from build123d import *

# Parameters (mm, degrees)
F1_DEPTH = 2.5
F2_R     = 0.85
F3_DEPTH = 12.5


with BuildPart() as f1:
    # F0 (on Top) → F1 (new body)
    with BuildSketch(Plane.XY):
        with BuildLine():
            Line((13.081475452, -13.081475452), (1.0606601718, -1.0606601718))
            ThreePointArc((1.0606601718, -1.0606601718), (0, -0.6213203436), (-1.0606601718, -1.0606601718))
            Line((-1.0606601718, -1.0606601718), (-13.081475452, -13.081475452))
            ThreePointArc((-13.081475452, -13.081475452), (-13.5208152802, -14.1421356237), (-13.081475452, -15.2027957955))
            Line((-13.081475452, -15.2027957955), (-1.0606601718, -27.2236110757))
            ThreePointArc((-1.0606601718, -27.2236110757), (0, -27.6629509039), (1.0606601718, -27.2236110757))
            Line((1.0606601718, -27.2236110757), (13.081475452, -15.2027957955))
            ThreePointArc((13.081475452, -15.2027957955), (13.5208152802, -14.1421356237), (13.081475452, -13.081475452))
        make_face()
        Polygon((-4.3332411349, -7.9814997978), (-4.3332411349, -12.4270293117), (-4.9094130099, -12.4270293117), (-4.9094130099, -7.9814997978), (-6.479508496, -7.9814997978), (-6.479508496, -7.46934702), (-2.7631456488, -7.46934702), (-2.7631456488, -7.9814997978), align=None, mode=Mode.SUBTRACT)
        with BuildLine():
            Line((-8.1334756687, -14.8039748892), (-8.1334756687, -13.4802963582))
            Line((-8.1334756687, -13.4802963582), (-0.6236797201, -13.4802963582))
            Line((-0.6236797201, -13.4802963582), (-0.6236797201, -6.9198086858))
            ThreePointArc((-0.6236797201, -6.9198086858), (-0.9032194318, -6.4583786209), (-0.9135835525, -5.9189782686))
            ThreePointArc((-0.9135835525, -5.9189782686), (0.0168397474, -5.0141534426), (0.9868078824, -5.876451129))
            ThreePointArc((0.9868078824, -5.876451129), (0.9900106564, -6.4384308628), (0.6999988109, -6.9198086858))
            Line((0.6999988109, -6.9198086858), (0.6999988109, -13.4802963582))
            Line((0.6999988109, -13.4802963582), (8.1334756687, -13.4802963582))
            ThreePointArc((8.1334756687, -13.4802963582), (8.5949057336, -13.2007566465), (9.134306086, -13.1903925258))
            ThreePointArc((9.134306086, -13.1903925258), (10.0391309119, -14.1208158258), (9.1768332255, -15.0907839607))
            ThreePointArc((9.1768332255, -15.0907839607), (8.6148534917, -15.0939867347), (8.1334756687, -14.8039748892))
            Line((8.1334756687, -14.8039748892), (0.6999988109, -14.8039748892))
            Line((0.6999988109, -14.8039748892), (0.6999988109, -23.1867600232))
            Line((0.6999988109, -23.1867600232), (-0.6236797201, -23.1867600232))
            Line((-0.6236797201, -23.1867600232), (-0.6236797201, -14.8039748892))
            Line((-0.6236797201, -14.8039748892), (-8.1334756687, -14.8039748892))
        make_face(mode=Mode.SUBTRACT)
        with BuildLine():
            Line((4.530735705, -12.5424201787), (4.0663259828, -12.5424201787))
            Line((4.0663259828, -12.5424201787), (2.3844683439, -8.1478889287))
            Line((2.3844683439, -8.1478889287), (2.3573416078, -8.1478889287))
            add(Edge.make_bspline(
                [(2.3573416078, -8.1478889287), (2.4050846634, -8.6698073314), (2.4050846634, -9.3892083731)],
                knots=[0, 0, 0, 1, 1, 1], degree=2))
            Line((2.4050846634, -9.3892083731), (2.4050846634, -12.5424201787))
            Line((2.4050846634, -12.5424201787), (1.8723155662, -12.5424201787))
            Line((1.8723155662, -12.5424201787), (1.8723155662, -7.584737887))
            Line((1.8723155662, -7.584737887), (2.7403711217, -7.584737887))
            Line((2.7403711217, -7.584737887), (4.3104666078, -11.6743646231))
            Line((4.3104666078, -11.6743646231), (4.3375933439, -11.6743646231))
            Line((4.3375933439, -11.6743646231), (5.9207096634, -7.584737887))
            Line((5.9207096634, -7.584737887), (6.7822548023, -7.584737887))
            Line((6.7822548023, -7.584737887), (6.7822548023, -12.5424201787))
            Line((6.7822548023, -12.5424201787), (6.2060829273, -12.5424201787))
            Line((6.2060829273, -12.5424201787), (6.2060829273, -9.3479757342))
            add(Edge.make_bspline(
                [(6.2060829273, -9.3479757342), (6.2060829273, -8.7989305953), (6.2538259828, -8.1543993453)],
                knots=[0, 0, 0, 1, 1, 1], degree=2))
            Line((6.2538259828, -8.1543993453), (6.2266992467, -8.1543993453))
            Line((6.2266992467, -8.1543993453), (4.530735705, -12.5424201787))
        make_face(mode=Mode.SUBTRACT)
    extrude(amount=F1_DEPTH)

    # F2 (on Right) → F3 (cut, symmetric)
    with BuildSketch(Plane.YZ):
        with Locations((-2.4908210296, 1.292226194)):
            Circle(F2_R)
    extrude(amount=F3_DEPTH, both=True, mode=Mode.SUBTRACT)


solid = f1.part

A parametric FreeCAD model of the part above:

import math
import FreeCAD as App
import Part
import Sketcher

V = App.Vector
Q = App.Units.Quantity


def add_polygon(sketch, points):
    """Adds a closed chain of lines whose ends are joined by coincident constraints."""
    first, n = sketch.GeometryCount, len(points)
    for a, b in zip(points, points[1:] + points[:1]):
        sketch.addGeometry(Part.LineSegment(App.Vector(*a, 0), App.Vector(*b, 0)), False)
    for i in range(n):
        sketch.addConstraint(Sketcher.Constraint("Coincident", first + i, 2, first + (i + 1) % n, 1))

doc = App.newDocument("Part")
body = doc.addObject("PartDesign::Body", "Body")

sketch1 = body.newObject("Sketcher::SketchObject", "Sketch")
sketch1.AttachmentSupport = (doc.getObject("XY_Plane"), [""])
sketch1.MapMode = "FlatFace"
sketch1.addGeometry(Part.LineSegment(V(13.081475, -13.081475, 0), V(1.06066, -1.06066, 0)), False)
sketch1.addGeometry(Part.ArcOfCircle(Part.Circle(V(0, -2.12132, 0), V(0, 0, 1), 1.5), math.radians(45), math.radians(135)), False)
sketch1.addGeometry(Part.LineSegment(V(-1.06066, -1.06066, 0), V(-13.081475, -13.081475, 0)), False)
sketch1.addGeometry(Part.ArcOfCircle(Part.Circle(V(-12.020815, -14.142136, 0), V(0, 0, 1), 1.5), math.radians(135), math.radians(225)), False)
sketch1.addGeometry(Part.LineSegment(V(-13.081475, -15.202796, 0), V(-1.06066, -27.223611, 0)), False)
sketch1.addGeometry(Part.ArcOfCircle(Part.Circle(V(0, -26.162951, 0), V(0, 0, 1), 1.5), math.radians(-135), math.radians(-45)), False)
sketch1.addGeometry(Part.LineSegment(V(1.06066, -27.223611, 0), V(13.081475, -15.202796, 0)), False)
sketch1.addGeometry(Part.ArcOfCircle(Part.Circle(V(12.020815, -14.142136, 0), V(0, 0, 1), 1.5), math.radians(-45), math.radians(45)), False)
add_polygon(sketch1, [(-2.763146, -7.9815), (-4.333241, -7.9815), (-4.333241, -12.427029), (-4.909413, -12.427029), (-4.909413, -7.9815), (-6.479508, -7.9815), (-6.479508, -7.469347), (-2.763146, -7.469347)])
sketch1.addGeometry(Part.LineSegment(V(-0.62368, -14.803975, 0), V(-8.133476, -14.803975, 0)), False)
sketch1.addGeometry(Part.LineSegment(V(-8.133476, -14.803975, 0), V(-8.133476, -13.480296, 0)), False)
sketch1.addGeometry(Part.LineSegment(V(-8.133476, -13.480296, 0), V(-0.62368, -13.480296, 0)), False)
sketch1.addGeometry(Part.LineSegment(V(-0.62368, -13.480296, 0), V(-0.62368, -6.919809, 0)), False)
sketch1.addGeometry(Part.ArcOfCircle(Part.Circle(V(0.094379, -6.169411, 0), V(0, 0, 1), 1.038608), math.radians(166.047147), math.radians(226.261577)), False)
sketch1.addGeometry(Part.ArcOfCircle(Part.Circle(V(0.03816, -5.966862, 0), V(0, 0, 1), 0.952947), math.radians(5.444116), math.radians(177.119797)), False)
sketch1.addGeometry(Part.ArcOfCircle(Part.Circle(V(-0.011448, -6.163139, 0), V(0, 0, 1), 1.038608), math.radians(-46.764314), math.radians(16.023479)), False)
sketch1.addGeometry(Part.LineSegment(V(0.699999, -6.919809, 0), V(0.699999, -13.480296, 0)), False)
sketch1.addGeometry(Part.LineSegment(V(0.699999, -13.480296, 0), V(8.133476, -13.480296, 0)), False)
sketch1.addGeometry(Part.ArcOfCircle(Part.Circle(V(8.883873, -14.198355, 0), V(0, 0, 1), 1.038608), math.radians(76.047147), math.radians(136.261577)), False)
sketch1.addGeometry(Part.ArcOfCircle(Part.Circle(V(9.086423, -14.142136, 0), V(0, 0, 1), 0.952947), math.radians(-84.555884), math.radians(87.119797)), False)
sketch1.addGeometry(Part.ArcOfCircle(Part.Circle(V(8.890145, -14.092528, 0), V(0, 0, 1), 1.038608), math.radians(-136.764314), math.radians(-73.976521)), False)
sketch1.addGeometry(Part.LineSegment(V(8.133476, -14.803975, 0), V(0.699999, -14.803975, 0)), False)
sketch1.addGeometry(Part.LineSegment(V(0.699999, -14.803975, 0), V(0.699999, -23.18676, 0)), False)
sketch1.addGeometry(Part.LineSegment(V(0.699999, -23.18676, 0), V(-0.62368, -23.18676, 0)), False)
sketch1.addGeometry(Part.LineSegment(V(-0.62368, -23.18676, 0), V(-0.62368, -14.803975, 0)), False)
sketch1.addGeometry(Part.LineSegment(V(6.226699, -8.154399, 0), V(4.530736, -12.54242, 0)), False)
sketch1.addGeometry(Part.LineSegment(V(4.530736, -12.54242, 0), V(4.066326, -12.54242, 0)), False)
sketch1.addGeometry(Part.LineSegment(V(4.066326, -12.54242, 0), V(2.384468, -8.147889, 0)), False)
sketch1.addGeometry(Part.LineSegment(V(2.384468, -8.147889, 0), V(2.357342, -8.147889, 0)), False)
sketch1.addGeometry(Part.BSplineCurve([V(2.357342, -8.147889, 0), V(2.405085, -8.669807, 0), V(2.405085, -9.389208, 0)], [3, 3], [0, 1], False, 2, [1, 1, 1], False), False)
sketch1.addGeometry(Part.LineSegment(V(2.405085, -9.389208, 0), V(2.405085, -12.54242, 0)), False)
sketch1.addGeometry(Part.LineSegment(V(2.405085, -12.54242, 0), V(1.872316, -12.54242, 0)), False)
sketch1.addGeometry(Part.LineSegment(V(1.872316, -12.54242, 0), V(1.872316, -7.584738, 0)), False)
sketch1.addGeometry(Part.LineSegment(V(1.872316, -7.584738, 0), V(2.740371, -7.584738, 0)), False)
sketch1.addGeometry(Part.LineSegment(V(2.740371, -7.584738, 0), V(4.310467, -11.674365, 0)), False)
sketch1.addGeometry(Part.LineSegment(V(4.310467, -11.674365, 0), V(4.337593, -11.674365, 0)), False)
sketch1.addGeometry(Part.LineSegment(V(4.337593, -11.674365, 0), V(5.92071, -7.584738, 0)), False)
sketch1.addGeometry(Part.LineSegment(V(5.92071, -7.584738, 0), V(6.782255, -7.584738, 0)), False)
sketch1.addGeometry(Part.LineSegment(V(6.782255, -7.584738, 0), V(6.782255, -12.54242, 0)), False)
sketch1.addGeometry(Part.LineSegment(V(6.782255, -12.54242, 0), V(6.206083, -12.54242, 0)), False)
sketch1.addGeometry(Part.LineSegment(V(6.206083, -12.54242, 0), V(6.206083, -9.347976, 0)), False)
sketch1.addGeometry(Part.BSplineCurve([V(6.206083, -9.347976, 0), V(6.206083, -8.798931, 0), V(6.253826, -8.154399, 0)], [3, 3], [0, 1], False, 2, [1, 1, 1], False), False)
sketch1.addGeometry(Part.LineSegment(V(6.253826, -8.154399, 0), V(6.226699, -8.154399, 0)), False)
sketch1.addConstraint(Sketcher.Constraint("Block", 36))
sketch1.addConstraint(Sketcher.Constraint("Block", 48))
sketch1.addConstraint(Sketcher.Constraint("Tangent", 0, 2, 1, 1))
sketch1.addConstraint(Sketcher.Constraint("Tangent", 1, 2, 2, 1))
sketch1.addConstraint(Sketcher.Constraint("Tangent", 2, 2, 3, 1))
sketch1.addConstraint(Sketcher.Constraint("Tangent", 3, 2, 4, 1))
sketch1.addConstraint(Sketcher.Constraint("Tangent", 4, 2, 5, 1))
sketch1.addConstraint(Sketcher.Constraint("Tangent", 5, 2, 6, 1))
sketch1.addConstraint(Sketcher.Constraint("Tangent", 6, 2, 7, 1))
sketch1.addConstraint(Sketcher.Constraint("Tangent", 7, 2, 0, 1))
sketch1.addConstraint(Sketcher.Constraint("Coincident", 16, 2, 17, 1))
sketch1.addConstraint(Sketcher.Constraint("Coincident", 17, 2, 18, 1))
sketch1.addConstraint(Sketcher.Constraint("Coincident", 18, 2, 19, 1))
sketch1.addConstraint(Sketcher.Constraint("Coincident", 19, 2, 20, 2))
sketch1.addConstraint(Sketcher.Constraint("Coincident", 20, 1, 21, 2))
sketch1.addConstraint(Sketcher.Constraint("Coincident", 21, 1, 22, 2))
sketch1.addConstraint(Sketcher.Constraint("Coincident", 22, 1, 23, 1))
sketch1.addConstraint(Sketcher.Constraint("Coincident", 23, 2, 24, 1))
sketch1.addConstraint(Sketcher.Constraint("Coincident", 24, 2, 25, 2))
sketch1.addConstraint(Sketcher.Constraint("Coincident", 25, 1, 26, 2))
sketch1.addConstraint(Sketcher.Constraint("Coincident", 26, 1, 27, 2))
sketch1.addConstraint(Sketcher.Constraint("Coincident", 27, 1, 28, 1))
sketch1.addConstraint(Sketcher.Constraint("Coincident", 28, 2, 29, 1))
sketch1.addConstraint(Sketcher.Constraint("Coincident", 29, 2, 30, 1))
sketch1.addConstraint(Sketcher.Constraint("Coincident", 30, 2, 31, 1))
sketch1.addConstraint(Sketcher.Constraint("Coincident", 31, 2, 16, 1))
sketch1.addConstraint(Sketcher.Constraint("Coincident", 32, 2, 33, 1))
sketch1.addConstraint(Sketcher.Constraint("Coincident", 33, 2, 34, 1))
sketch1.addConstraint(Sketcher.Constraint("Coincident", 34, 2, 35, 1))
sketch1.addConstraint(Sketcher.Constraint("Coincident", 35, 2, 36, 1))
sketch1.addConstraint(Sketcher.Constraint("Coincident", 36, 2, 37, 1))
sketch1.addConstraint(Sketcher.Constraint("Coincident", 37, 2, 38, 1))
sketch1.addConstraint(Sketcher.Constraint("Coincident", 38, 2, 39, 1))
sketch1.addConstraint(Sketcher.Constraint("Coincident", 39, 2, 40, 1))
sketch1.addConstraint(Sketcher.Constraint("Coincident", 40, 2, 41, 1))
sketch1.addConstraint(Sketcher.Constraint("Coincident", 41, 2, 42, 1))
sketch1.addConstraint(Sketcher.Constraint("Coincident", 42, 2, 43, 1))
sketch1.addConstraint(Sketcher.Constraint("Coincident", 43, 2, 44, 1))
sketch1.addConstraint(Sketcher.Constraint("Coincident", 44, 2, 45, 1))
sketch1.addConstraint(Sketcher.Constraint("Coincident", 45, 2, 46, 1))
sketch1.addConstraint(Sketcher.Constraint("Coincident", 46, 2, 47, 1))
sketch1.addConstraint(Sketcher.Constraint("Coincident", 47, 2, 48, 1))
sketch1.addConstraint(Sketcher.Constraint("Coincident", 48, 2, 49, 1))
sketch1.addConstraint(Sketcher.Constraint("Coincident", 49, 2, 32, 1))
sketch1.addConstraint(Sketcher.Constraint("Horizontal", 8))
sketch1.addConstraint(Sketcher.Constraint("Vertical", 9))
sketch1.addConstraint(Sketcher.Constraint("Horizontal", 10))
sketch1.addConstraint(Sketcher.Constraint("Vertical", 11))
sketch1.addConstraint(Sketcher.Constraint("Horizontal", 12))
sketch1.addConstraint(Sketcher.Constraint("Vertical", 13))
sketch1.addConstraint(Sketcher.Constraint("Horizontal", 14))
sketch1.addConstraint(Sketcher.Constraint("Vertical", 15))
sketch1.addConstraint(Sketcher.Constraint("Horizontal", 16))
sketch1.addConstraint(Sketcher.Constraint("Vertical", 17))
sketch1.addConstraint(Sketcher.Constraint("Horizontal", 18))
sketch1.addConstraint(Sketcher.Constraint("Vertical", 19))
sketch1.addConstraint(Sketcher.Constraint("Vertical", 23))
sketch1.addConstraint(Sketcher.Constraint("Horizontal", 24))
sketch1.addConstraint(Sketcher.Constraint("Horizontal", 28))
sketch1.addConstraint(Sketcher.Constraint("Vertical", 29))
sketch1.addConstraint(Sketcher.Constraint("Horizontal", 30))
sketch1.addConstraint(Sketcher.Constraint("Vertical", 31))
sketch1.addConstraint(Sketcher.Constraint("Horizontal", 33))
sketch1.addConstraint(Sketcher.Constraint("Horizontal", 35))
sketch1.addConstraint(Sketcher.Constraint("Vertical", 37))
sketch1.addConstraint(Sketcher.Constraint("Horizontal", 38))
sketch1.addConstraint(Sketcher.Constraint("Vertical", 39))
sketch1.addConstraint(Sketcher.Constraint("Horizontal", 40))
sketch1.addConstraint(Sketcher.Constraint("Horizontal", 42))
sketch1.addConstraint(Sketcher.Constraint("Horizontal", 44))
sketch1.addConstraint(Sketcher.Constraint("Vertical", 45))
sketch1.addConstraint(Sketcher.Constraint("Horizontal", 46))
sketch1.addConstraint(Sketcher.Constraint("Vertical", 47))
sketch1.addConstraint(Sketcher.Constraint("Horizontal", 49))
sketch1.addConstraint(Sketcher.Constraint("Equal", 1, 3))
sketch1.addConstraint(Sketcher.Constraint("Equal", 3, 5))
sketch1.addConstraint(Sketcher.Constraint("Equal", 5, 7))
sketch1.addConstraint(Sketcher.Constraint("Equal", 20, 22))
sketch1.addConstraint(Sketcher.Constraint("Equal", 22, 25))
sketch1.addConstraint(Sketcher.Constraint("Equal", 21, 26))
sketch1.addConstraint(Sketcher.Constraint("Equal", 25, 27))
sketch1.addConstraint(Sketcher.Constraint("Symmetric", 3, 3, 7, 3, -2))
sketch1.addConstraint(Sketcher.Constraint("Symmetric", 17, 2, 24, 2, -2))
sketch1.addConstraint(Sketcher.Constraint("Symmetric", 16, 2, 27, 1, -2))
sketch1.addConstraint(Sketcher.Constraint("PointOnObject", 1, 3, -2))
sketch1.addConstraint(Sketcher.Constraint("PointOnObject", 5, 3, -2))
sketch1.addConstraint(Sketcher.Constraint("Perpendicular", 0, 2))
sketch1.addConstraint(Sketcher.Constraint("Perpendicular", 2, 4))
sketch1.addConstraint(Sketcher.Constraint("Horizontal", 7, 3, 26, 3))
sketch1.addConstraint(Sketcher.Constraint("Horizontal", 8, 2, 11, 2))
sketch1.addConstraint(Sketcher.Constraint("Horizontal", 19, 2, 22, 1))
sketch1.addConstraint(Sketcher.Constraint("Horizontal", 33, 2, 37, 2))
sketch1.addConstraint(Sketcher.Constraint("Horizontal", 40, 2, 43, 2))
sketch1.addConstraint(Sketcher.Constraint("Horizontal", 38, 2, 45, 2))
sketch1.addConstraint(Sketcher.Constraint("Vertical", 23, 2, 28, 2))
sketch1.addConstraint(Sketcher.Constraint("Vertical", 19, 2, 30, 2))
sketch1.addConstraint(Sketcher.Constraint("Equal", 8, 12))
sketch1.addConstraint(Sketcher.Constraint("Equal", 35, 42))
sketch1.addConstraint(Sketcher.Constraint("Equal", 10, 46))
sketch1.addConstraint(Sketcher.Constraint("Equal", 42, 49))
sketch1.addConstraint(Sketcher.Constraint("Equal", 30, 17))
sketch1.addConstraint(Sketcher.Constraint("Radius", 1, Q("1.5 mm")))
sketch1.addConstraint(Sketcher.Constraint("Distance", 0, Q("17 mm")))
sketch1.addConstraint(Sketcher.Constraint("DistanceX", -1, 1, 22, 1, Q("0.699999 mm")))
sketch1.addConstraint(Sketcher.Constraint("Radius", 20, Q("1.038608 mm")))
sketch1.addConstraint(Sketcher.Constraint("Radius", 21, Q("0.952947 mm")))
sketch1.addConstraint(Sketcher.Constraint("DistanceX", 3, 2, 16, 2, Q("4.948 mm")))
sketch1.addConstraint(Sketcher.Constraint("DistanceX", 34, 2, 41, 2, Q("1.925998 mm")))
sketch1.addConstraint(Sketcher.Constraint("DistanceX", 10, 2, 10, 1, Q("0.576172 mm")))
sketch1.addConstraint(Sketcher.Constraint("DistanceX", 30, 2, 30, 1, Q("1.323679 mm")))
sketch1.addConstraint(Sketcher.Constraint("DistanceX", 33, 2, 33, 1, Q("0.46441 mm")))
sketch1.addConstraint(Sketcher.Constraint("DistanceX", 38, 2, 38, 1, Q("0.532769 mm")))
sketch1.addConstraint(Sketcher.Constraint("DistanceY", 9, 2, 9, 1, Q("4.44553 mm")))
sketch1.addConstraint(Sketcher.Constraint("DistanceY", 37, 2, 37, 1, Q("3.153212 mm")))
sketch1.addConstraint(Sketcher.Constraint("DistanceY", 8, 2, -1, 1, Q("7.9815 mm")))
sketch1.addConstraint(Sketcher.Constraint("DistanceX", -1, 1, 49, 2, Q("6.226699 mm")))
sketch1.addConstraint(Sketcher.Constraint("DistanceX", 21, 3, 0, 2, Q("1.022501 mm")))
sketch1.addConstraint(Sketcher.Constraint("DistanceY", 21, 3, 0, 2, Q("4.906202 mm")))
sketch1.addConstraint(Sketcher.Constraint("DistanceX", 25, 3, 6, 2, Q("4.197602 mm")))
sketch1.addConstraint(Sketcher.Constraint("DistanceX", 8, 2, 21, 3, Q("4.371401 mm")))
sketch1.addConstraint(Sketcher.Constraint("DistanceY", 16, 2, 2, 2, Q("1.722499 mm")))
sketch1.addConstraint(Sketcher.Constraint("Distance", 32, Q("4.704362 mm")))
sketch1.addConstraint(Sketcher.Constraint("Distance", 43, Q("4.385351 mm")))
sketch1.addConstraint(Sketcher.Constraint("DistanceX", 8, 2, 8, 1, Q("1.570095 mm")))
sketch1.addConstraint(Sketcher.Constraint("DistanceX", 40, 1, 40, 2, Q("0.868056 mm")))
sketch1.addConstraint(Sketcher.Constraint("DistanceX", 44, 1, 44, 2, Q("0.861545 mm")))
sketch1.addConstraint(Sketcher.Constraint("DistanceY", 13, 1, 13, 2, Q("0.512153 mm")))
sketch1.addConstraint(Sketcher.Constraint("DistanceY", 19, 1, 19, 2, Q("6.560488 mm")))
sketch1.addConstraint(Sketcher.Constraint("DistanceY", 29, 2, 29, 1, Q("8.382785 mm")))
sketch1.addConstraint(Sketcher.Constraint("DistanceY", 39, 1, 39, 2, Q("4.957682 mm")))
sketch1.addConstraint(Sketcher.Constraint("DistanceY", 1, 3, -1, 1, Q("2.12132 mm")))
sketch1.addConstraint(Sketcher.Constraint("DistanceX", -1, 1, 20, 3, Q("0.094379 mm")))
sketch1.addConstraint(Sketcher.Constraint("DistanceX", 22, 3, -1, 1, Q("0.011448 mm")))
sketch1.addConstraint(Sketcher.Constraint("DistanceX", 25, 3, 26, 3, Q("0.202549 mm")))
sketch1.addConstraint(Sketcher.Constraint("DistanceX", 25, 3, 27, 3, Q("0.006272 mm")))
pad1 = body.newObject("PartDesign::Pad", "Pad")
pad1.Profile = sketch1
pad1.Length = 2.5

sketch2 = body.newObject("Sketcher::SketchObject", "Sketch001")
sketch2.AttachmentSupport = (doc.getObject("YZ_Plane"), [""])
sketch2.MapMode = "FlatFace"
sketch2.addGeometry(Part.Circle(V(-2.5, 1.3, 0), V(0, 0, 1), 0.8), False)
sketch2.addConstraint(Sketcher.Constraint("Diameter", 0, Q("1.7 mm")))
sketch2.addConstraint(Sketcher.Constraint("DistanceX", 0, 3, -1, 1, Q("2.490821 mm")))
sketch2.addConstraint(Sketcher.Constraint("DistanceY", -1, 1, 0, 3, Q("1.292226 mm")))
pocket1 = body.newObject("PartDesign::Pocket", "Pocket")
pocket1.Profile = sketch2
pocket1.Length = 25
pocket1.Midplane = True

doc.recompute()
